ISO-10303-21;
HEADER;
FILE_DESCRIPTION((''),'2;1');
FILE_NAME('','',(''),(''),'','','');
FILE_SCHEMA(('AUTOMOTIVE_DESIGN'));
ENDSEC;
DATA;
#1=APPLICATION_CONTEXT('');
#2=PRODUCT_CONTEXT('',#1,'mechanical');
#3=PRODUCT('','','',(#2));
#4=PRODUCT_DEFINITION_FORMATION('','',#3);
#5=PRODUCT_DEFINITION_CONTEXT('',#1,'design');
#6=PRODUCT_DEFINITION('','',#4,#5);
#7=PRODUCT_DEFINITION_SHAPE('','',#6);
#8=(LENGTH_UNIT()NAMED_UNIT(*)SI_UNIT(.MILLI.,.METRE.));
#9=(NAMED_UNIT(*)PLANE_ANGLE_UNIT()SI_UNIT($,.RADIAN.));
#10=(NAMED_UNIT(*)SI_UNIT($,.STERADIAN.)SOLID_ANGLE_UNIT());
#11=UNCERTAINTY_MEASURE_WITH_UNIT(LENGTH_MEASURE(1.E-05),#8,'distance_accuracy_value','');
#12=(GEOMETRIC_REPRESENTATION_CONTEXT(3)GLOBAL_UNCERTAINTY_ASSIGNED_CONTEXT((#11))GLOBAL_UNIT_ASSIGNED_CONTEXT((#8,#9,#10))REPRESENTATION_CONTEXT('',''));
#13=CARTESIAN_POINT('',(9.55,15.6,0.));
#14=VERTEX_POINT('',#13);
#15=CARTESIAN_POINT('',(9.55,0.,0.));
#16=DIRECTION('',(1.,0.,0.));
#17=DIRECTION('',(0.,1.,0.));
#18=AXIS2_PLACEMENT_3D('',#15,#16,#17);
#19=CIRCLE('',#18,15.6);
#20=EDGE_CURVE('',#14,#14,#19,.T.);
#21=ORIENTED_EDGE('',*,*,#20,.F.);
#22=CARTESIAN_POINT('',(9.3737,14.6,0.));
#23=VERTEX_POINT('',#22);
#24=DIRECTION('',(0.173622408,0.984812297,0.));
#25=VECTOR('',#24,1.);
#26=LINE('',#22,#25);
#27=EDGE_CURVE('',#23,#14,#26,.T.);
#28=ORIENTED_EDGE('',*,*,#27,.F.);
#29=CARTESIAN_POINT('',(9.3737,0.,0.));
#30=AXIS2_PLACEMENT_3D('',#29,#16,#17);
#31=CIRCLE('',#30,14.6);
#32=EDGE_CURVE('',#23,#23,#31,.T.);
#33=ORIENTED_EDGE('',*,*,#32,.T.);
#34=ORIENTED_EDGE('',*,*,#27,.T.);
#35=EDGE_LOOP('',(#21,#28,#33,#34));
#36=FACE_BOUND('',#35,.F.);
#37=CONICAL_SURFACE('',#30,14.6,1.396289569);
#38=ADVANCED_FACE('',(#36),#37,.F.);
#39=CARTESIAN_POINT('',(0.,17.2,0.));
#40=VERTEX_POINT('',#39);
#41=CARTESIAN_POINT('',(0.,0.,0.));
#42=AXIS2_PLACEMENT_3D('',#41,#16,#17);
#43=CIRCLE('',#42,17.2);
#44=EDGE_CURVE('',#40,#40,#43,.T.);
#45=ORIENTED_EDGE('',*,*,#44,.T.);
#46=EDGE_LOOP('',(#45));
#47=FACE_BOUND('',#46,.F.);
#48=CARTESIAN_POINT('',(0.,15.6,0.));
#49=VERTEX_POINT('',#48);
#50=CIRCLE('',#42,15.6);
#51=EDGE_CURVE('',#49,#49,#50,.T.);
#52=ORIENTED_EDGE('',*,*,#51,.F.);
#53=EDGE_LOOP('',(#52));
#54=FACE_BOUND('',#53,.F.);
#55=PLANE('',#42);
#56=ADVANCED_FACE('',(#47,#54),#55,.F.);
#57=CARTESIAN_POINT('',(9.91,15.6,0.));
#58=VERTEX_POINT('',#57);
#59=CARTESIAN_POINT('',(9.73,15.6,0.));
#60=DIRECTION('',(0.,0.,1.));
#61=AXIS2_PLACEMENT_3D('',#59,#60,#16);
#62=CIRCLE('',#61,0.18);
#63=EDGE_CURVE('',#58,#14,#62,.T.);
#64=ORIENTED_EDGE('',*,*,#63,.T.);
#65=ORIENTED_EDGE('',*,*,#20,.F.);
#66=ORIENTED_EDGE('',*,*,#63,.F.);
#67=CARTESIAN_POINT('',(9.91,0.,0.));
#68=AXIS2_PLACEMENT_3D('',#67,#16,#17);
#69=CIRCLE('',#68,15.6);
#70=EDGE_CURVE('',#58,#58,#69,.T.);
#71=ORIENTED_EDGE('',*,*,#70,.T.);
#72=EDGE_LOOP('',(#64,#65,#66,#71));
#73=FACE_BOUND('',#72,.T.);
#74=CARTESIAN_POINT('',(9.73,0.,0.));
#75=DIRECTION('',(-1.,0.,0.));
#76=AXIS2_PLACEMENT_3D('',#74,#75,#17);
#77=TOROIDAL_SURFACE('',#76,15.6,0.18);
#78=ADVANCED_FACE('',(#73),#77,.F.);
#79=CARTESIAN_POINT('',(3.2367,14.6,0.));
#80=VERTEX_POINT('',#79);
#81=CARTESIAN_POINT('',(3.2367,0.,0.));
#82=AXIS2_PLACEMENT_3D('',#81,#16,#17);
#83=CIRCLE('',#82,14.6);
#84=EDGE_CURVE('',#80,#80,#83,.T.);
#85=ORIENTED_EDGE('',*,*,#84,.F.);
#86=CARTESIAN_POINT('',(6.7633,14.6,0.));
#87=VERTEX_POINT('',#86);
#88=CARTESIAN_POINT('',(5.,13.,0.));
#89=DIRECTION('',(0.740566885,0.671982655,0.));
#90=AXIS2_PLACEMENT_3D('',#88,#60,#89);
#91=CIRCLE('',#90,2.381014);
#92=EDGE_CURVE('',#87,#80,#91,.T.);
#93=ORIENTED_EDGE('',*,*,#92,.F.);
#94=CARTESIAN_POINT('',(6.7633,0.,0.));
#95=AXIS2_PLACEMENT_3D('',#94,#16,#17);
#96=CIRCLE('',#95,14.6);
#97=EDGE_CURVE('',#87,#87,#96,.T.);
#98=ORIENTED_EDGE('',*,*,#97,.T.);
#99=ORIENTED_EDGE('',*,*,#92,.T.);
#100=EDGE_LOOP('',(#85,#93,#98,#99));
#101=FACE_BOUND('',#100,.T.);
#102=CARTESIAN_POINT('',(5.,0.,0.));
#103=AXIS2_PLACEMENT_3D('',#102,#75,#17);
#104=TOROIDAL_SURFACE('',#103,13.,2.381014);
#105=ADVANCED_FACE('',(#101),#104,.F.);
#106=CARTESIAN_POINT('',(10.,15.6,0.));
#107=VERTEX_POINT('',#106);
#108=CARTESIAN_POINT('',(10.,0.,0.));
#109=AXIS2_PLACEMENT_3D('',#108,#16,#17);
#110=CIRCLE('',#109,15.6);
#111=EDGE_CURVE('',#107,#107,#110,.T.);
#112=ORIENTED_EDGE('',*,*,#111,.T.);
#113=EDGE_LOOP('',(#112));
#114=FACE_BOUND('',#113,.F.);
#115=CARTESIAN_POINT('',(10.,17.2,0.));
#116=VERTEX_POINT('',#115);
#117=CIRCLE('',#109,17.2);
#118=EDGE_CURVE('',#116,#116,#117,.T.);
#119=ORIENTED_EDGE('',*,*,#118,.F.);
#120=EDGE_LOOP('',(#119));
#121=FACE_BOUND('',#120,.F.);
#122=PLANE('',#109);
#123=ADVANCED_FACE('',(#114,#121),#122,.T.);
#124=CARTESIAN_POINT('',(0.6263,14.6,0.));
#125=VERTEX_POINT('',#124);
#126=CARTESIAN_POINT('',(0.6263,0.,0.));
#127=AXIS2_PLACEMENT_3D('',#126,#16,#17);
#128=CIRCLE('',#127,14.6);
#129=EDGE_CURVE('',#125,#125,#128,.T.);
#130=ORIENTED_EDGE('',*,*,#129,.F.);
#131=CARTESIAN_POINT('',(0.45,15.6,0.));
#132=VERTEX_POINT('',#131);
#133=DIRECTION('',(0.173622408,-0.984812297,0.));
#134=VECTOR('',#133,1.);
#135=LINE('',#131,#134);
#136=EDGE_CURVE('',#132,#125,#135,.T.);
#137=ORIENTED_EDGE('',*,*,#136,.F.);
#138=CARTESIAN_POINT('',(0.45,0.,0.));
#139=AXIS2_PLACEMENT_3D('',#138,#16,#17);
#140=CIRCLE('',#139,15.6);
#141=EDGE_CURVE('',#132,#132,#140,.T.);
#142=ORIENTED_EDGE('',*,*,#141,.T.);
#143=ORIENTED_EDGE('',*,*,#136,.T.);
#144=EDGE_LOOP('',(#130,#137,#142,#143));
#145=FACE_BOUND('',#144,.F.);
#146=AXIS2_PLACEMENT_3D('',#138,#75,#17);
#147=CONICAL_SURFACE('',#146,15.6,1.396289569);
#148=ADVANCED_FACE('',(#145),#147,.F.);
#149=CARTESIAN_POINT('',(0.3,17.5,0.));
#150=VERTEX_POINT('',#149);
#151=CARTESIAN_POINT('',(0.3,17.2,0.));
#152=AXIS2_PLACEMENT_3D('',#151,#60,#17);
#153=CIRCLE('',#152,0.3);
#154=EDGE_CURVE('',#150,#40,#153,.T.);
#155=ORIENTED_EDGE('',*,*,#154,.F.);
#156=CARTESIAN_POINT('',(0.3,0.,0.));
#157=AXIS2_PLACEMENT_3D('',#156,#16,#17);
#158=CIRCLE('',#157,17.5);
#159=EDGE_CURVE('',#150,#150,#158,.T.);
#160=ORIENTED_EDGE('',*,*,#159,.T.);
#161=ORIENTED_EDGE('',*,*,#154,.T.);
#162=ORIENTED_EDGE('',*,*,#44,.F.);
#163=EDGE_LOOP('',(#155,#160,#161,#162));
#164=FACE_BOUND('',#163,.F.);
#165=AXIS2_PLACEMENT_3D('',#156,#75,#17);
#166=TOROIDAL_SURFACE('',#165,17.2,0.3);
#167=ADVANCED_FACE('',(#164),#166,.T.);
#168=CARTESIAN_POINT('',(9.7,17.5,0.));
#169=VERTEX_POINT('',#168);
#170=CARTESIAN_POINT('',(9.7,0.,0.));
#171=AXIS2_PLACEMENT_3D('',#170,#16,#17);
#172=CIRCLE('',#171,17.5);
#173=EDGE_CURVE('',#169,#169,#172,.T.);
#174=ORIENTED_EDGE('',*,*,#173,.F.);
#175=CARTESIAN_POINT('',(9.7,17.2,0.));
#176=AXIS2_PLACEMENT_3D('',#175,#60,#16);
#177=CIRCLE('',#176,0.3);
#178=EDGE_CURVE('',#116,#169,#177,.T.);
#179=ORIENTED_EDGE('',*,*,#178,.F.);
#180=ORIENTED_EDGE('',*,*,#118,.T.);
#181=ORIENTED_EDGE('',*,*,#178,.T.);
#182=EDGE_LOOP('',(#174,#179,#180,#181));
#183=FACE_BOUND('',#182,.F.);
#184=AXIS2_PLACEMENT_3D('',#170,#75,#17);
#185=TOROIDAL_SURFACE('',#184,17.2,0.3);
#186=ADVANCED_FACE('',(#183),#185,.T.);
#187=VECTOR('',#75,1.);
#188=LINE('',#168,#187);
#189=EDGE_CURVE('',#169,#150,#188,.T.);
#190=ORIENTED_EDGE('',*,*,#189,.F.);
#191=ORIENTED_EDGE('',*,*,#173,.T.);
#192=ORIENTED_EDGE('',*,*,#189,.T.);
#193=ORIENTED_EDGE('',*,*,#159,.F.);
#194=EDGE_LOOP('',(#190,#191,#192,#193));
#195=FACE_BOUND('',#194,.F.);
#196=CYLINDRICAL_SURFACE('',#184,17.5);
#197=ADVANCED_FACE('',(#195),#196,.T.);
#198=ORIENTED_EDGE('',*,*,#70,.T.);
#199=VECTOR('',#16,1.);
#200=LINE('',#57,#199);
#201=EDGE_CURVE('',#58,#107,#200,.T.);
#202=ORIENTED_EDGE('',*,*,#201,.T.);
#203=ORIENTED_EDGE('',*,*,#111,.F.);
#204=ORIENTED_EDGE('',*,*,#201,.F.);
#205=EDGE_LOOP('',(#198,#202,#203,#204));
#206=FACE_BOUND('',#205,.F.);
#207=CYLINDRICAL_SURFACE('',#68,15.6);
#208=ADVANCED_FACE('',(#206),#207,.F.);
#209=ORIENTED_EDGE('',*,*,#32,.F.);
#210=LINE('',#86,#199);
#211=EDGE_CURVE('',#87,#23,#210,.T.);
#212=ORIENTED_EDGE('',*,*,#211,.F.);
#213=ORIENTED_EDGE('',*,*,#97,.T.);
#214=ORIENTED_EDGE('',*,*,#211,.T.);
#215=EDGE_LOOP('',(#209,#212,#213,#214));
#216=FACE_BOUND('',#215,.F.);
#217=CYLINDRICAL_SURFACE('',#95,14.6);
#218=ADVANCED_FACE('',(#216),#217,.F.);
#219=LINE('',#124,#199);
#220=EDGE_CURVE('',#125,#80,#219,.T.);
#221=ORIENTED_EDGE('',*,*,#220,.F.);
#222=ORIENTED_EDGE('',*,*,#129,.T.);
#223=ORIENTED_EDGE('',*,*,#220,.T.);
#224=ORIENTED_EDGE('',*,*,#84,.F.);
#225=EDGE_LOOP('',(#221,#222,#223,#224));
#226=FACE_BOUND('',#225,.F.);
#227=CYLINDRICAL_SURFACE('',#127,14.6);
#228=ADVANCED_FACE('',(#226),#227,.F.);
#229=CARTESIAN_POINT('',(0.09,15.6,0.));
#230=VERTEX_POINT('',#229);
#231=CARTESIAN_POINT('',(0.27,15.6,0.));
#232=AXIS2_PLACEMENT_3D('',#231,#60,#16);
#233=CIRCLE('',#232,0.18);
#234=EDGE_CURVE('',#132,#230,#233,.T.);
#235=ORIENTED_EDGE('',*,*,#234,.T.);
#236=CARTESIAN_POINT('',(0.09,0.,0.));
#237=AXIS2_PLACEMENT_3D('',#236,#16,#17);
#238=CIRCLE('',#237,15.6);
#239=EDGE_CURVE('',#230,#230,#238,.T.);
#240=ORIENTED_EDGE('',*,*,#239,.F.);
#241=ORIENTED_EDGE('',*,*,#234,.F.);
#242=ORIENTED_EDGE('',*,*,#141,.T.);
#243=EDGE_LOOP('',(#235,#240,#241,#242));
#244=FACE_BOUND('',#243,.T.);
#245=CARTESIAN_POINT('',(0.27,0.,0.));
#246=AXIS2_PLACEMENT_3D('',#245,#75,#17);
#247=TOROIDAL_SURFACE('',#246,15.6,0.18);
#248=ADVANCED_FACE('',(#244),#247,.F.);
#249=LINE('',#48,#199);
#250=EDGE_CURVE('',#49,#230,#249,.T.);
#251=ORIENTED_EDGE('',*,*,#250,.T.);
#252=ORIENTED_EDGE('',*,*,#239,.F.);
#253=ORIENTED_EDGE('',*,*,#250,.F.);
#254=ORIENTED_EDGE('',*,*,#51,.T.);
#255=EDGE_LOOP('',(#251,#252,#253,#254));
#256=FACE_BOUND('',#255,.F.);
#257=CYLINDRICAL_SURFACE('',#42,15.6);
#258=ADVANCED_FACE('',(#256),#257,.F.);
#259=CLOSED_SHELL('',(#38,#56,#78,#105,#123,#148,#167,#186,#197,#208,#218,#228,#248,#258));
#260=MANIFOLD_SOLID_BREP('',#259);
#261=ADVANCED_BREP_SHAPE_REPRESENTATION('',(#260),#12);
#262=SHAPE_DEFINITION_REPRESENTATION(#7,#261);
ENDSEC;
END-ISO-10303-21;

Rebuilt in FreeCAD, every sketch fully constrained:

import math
import FreeCAD as App
import Part
import Sketcher

V = App.Vector
Q = App.Units.Quantity

doc = App.newDocument("Part")
body = doc.addObject("PartDesign::Body", "Body")

# Sketch on XY plane
sketch1 = body.newObject("Sketcher::SketchObject", "Sketch")
sketch1.AttachmentSupport = (doc.getObject("XY_Plane"), [""])
sketch1.MapMode = "FlatFace"
sketch1.addGeometry(Part.ArcOfCircle(Part.Circle(V(0.3, 17.2, 0), V(0, 0, 1), 0.3), math.radians(90), math.radians(180)), False)
sketch1.addGeometry(Part.LineSegment(V(0, 17.2, 0), V(0, 15.6, 0)), False)
sketch1.addGeometry(Part.LineSegment(V(0, 15.6, 0), V(0.09, 15.6, 0)), False)
sketch1.addGeometry(Part.ArcOfCircle(Part.Circle(V(0.27, 15.6, 0), V(0, 0, 1), 0.18), math.radians(0), math.radians(180)), False)
sketch1.addGeometry(Part.LineSegment(V(0.45, 15.6, 0), V(0.63, 14.6, 0)), False)
sketch1.addGeometry(Part.LineSegment(V(0.63, 14.6, 0), V(3.24, 14.6, 0)), False)
sketch1.addGeometry(Part.ArcOfCircle(Part.Circle(V(5, 13, 0), V(0, 0, 1), 2.38), math.radians(42), math.radians(138)), False)
sketch1.addGeometry(Part.LineSegment(V(6.76, 14.6, 0), V(9.37, 14.6, 0)), False)
sketch1.addGeometry(Part.LineSegment(V(9.37, 14.6, 0), V(9.55, 15.6, 0)), False)
sketch1.addGeometry(Part.ArcOfCircle(Part.Circle(V(9.73, 15.6, 0), V(0, 0, 1), 0.18), math.radians(0), math.radians(180)), False)
sketch1.addGeometry(Part.LineSegment(V(9.91, 15.6, 0), V(10, 15.6, 0)), False)
sketch1.addGeometry(Part.LineSegment(V(10, 15.6, 0), V(10, 17.2, 0)), False)
sketch1.addGeometry(Part.ArcOfCircle(Part.Circle(V(9.7, 17.2, 0), V(0, 0, 1), 0.3), math.radians(0), math.radians(90)), False)
sketch1.addGeometry(Part.LineSegment(V(9.7, 17.5, 0), V(0.3, 17.5, 0)), False)
sketch1.addConstraint(Sketcher.Constraint("Tangent", 0, 2, 1, 1))
sketch1.addConstraint(Sketcher.Constraint("Coincident", 1, 2, 2, 1))
sketch1.addConstraint(Sketcher.Constraint("Coincident", 2, 2, 3, 2))
sketch1.addConstraint(Sketcher.Constraint("Coincident", 3, 1, 4, 1))
sketch1.addConstraint(Sketcher.Constraint("Coincident", 4, 2, 5, 1))
sketch1.addConstraint(Sketcher.Constraint("Coincident", 5, 2, 6, 2))
sketch1.addConstraint(Sketcher.Constraint("Coincident", 6, 1, 7, 1))
sketch1.addConstraint(Sketcher.Constraint("Coincident", 7, 2, 8, 1))
sketch1.addConstraint(Sketcher.Constraint("Coincident", 8, 2, 9, 2))
sketch1.addConstraint(Sketcher.Constraint("Coincident", 9, 1, 10, 1))
sketch1.addConstraint(Sketcher.Constraint("Coincident", 10, 2, 11, 1))
sketch1.addConstraint(Sketcher.Constraint("Tangent", 11, 2, 12, 1))
sketch1.addConstraint(Sketcher.Constraint("Tangent", 12, 2, 13, 1))
sketch1.addConstraint(Sketcher.Constraint("Tangent", 13, 2, 0, 1))
sketch1.addConstraint(Sketcher.Constraint("Vertical", 1))
sketch1.addConstraint(Sketcher.Constraint("Horizontal", 2))
sketch1.addConstraint(Sketcher.Constraint("Horizontal", 5))
sketch1.addConstraint(Sketcher.Constraint("Horizontal", 7))
sketch1.addConstraint(Sketcher.Constraint("Horizontal", 10))
sketch1.addConstraint(Sketcher.Constraint("Vertical", 11))
sketch1.addConstraint(Sketcher.Constraint("Horizontal", 13))
sketch1.addConstraint(Sketcher.Constraint("Equal", 3, 9))
sketch1.addConstraint(Sketcher.Constraint("Equal", 0, 12))
sketch1.addConstraint(Sketcher.Constraint("PointOnObject", 0, 2, -2))
sketch1.addConstraint(Sketcher.Constraint("Horizontal", 3, 3, 9, 3))
sketch1.addConstraint(Sketcher.Constraint("Horizontal", 9, 3, 1, 2))
sketch1.addConstraint(Sketcher.Constraint("Horizontal", 2, 2, 3, 1))
sketch1.addConstraint(Sketcher.Constraint("Horizontal", 5, 2, 6, 1))
sketch1.addConstraint(Sketcher.Constraint("Horizontal", 3, 1, 8, 2))
sketch1.addConstraint(Sketcher.Constraint("Horizontal", 8, 2, 9, 1))
sketch1.addConstraint(Sketcher.Constraint("Equal", 5, 7))
sketch1.addConstraint(Sketcher.Constraint("Equal", 2, 10))
sketch1.addConstraint(Sketcher.Constraint("Equal", 4, 8))
sketch1.addConstraint(Sketcher.Constraint("Radius", 0, Q("0.3 mm")))
sketch1.addConstraint(Sketcher.Constraint("Radius", 3, Q("0.18 mm")))
sketch1.addConstraint(Sketcher.Constraint("DistanceX", 13, 2, 13, 1, Q("9.4 mm")))
sketch1.addConstraint(Sketcher.Constraint("DistanceY", 1, 2, 1, 1, Q("1.6 mm")))
sketch1.addConstraint(Sketcher.Constraint("DistanceY", -1, 1, 6, 3, Q("13 mm")))
sketch1.addConstraint(Sketcher.Constraint("Radius", 6, Q("2.381 mm")))
sketch1.addConstraint(Sketcher.Constraint("DistanceY", 4, 2, 3, 1, Q("1 mm")))
sketch1.addConstraint(Sketcher.Constraint("DistanceX", 2, 1, 2, 2, Q("0.09 mm")))
sketch1.addConstraint(Sketcher.Constraint("DistanceY", -1, 1, 0, 3, Q("17.2 mm")))
sketch1.addConstraint(Sketcher.Constraint("DistanceX", 5, 1, 5, 2, Q("2.6104 mm")))
revolution = body.newObject("PartDesign::Revolution", "Revolution")
revolution.Profile = sketch1
revolution.ReferenceAxis = (sketch1, ["H_Axis"])
revolution.Angle = 360

doc.recompute()
